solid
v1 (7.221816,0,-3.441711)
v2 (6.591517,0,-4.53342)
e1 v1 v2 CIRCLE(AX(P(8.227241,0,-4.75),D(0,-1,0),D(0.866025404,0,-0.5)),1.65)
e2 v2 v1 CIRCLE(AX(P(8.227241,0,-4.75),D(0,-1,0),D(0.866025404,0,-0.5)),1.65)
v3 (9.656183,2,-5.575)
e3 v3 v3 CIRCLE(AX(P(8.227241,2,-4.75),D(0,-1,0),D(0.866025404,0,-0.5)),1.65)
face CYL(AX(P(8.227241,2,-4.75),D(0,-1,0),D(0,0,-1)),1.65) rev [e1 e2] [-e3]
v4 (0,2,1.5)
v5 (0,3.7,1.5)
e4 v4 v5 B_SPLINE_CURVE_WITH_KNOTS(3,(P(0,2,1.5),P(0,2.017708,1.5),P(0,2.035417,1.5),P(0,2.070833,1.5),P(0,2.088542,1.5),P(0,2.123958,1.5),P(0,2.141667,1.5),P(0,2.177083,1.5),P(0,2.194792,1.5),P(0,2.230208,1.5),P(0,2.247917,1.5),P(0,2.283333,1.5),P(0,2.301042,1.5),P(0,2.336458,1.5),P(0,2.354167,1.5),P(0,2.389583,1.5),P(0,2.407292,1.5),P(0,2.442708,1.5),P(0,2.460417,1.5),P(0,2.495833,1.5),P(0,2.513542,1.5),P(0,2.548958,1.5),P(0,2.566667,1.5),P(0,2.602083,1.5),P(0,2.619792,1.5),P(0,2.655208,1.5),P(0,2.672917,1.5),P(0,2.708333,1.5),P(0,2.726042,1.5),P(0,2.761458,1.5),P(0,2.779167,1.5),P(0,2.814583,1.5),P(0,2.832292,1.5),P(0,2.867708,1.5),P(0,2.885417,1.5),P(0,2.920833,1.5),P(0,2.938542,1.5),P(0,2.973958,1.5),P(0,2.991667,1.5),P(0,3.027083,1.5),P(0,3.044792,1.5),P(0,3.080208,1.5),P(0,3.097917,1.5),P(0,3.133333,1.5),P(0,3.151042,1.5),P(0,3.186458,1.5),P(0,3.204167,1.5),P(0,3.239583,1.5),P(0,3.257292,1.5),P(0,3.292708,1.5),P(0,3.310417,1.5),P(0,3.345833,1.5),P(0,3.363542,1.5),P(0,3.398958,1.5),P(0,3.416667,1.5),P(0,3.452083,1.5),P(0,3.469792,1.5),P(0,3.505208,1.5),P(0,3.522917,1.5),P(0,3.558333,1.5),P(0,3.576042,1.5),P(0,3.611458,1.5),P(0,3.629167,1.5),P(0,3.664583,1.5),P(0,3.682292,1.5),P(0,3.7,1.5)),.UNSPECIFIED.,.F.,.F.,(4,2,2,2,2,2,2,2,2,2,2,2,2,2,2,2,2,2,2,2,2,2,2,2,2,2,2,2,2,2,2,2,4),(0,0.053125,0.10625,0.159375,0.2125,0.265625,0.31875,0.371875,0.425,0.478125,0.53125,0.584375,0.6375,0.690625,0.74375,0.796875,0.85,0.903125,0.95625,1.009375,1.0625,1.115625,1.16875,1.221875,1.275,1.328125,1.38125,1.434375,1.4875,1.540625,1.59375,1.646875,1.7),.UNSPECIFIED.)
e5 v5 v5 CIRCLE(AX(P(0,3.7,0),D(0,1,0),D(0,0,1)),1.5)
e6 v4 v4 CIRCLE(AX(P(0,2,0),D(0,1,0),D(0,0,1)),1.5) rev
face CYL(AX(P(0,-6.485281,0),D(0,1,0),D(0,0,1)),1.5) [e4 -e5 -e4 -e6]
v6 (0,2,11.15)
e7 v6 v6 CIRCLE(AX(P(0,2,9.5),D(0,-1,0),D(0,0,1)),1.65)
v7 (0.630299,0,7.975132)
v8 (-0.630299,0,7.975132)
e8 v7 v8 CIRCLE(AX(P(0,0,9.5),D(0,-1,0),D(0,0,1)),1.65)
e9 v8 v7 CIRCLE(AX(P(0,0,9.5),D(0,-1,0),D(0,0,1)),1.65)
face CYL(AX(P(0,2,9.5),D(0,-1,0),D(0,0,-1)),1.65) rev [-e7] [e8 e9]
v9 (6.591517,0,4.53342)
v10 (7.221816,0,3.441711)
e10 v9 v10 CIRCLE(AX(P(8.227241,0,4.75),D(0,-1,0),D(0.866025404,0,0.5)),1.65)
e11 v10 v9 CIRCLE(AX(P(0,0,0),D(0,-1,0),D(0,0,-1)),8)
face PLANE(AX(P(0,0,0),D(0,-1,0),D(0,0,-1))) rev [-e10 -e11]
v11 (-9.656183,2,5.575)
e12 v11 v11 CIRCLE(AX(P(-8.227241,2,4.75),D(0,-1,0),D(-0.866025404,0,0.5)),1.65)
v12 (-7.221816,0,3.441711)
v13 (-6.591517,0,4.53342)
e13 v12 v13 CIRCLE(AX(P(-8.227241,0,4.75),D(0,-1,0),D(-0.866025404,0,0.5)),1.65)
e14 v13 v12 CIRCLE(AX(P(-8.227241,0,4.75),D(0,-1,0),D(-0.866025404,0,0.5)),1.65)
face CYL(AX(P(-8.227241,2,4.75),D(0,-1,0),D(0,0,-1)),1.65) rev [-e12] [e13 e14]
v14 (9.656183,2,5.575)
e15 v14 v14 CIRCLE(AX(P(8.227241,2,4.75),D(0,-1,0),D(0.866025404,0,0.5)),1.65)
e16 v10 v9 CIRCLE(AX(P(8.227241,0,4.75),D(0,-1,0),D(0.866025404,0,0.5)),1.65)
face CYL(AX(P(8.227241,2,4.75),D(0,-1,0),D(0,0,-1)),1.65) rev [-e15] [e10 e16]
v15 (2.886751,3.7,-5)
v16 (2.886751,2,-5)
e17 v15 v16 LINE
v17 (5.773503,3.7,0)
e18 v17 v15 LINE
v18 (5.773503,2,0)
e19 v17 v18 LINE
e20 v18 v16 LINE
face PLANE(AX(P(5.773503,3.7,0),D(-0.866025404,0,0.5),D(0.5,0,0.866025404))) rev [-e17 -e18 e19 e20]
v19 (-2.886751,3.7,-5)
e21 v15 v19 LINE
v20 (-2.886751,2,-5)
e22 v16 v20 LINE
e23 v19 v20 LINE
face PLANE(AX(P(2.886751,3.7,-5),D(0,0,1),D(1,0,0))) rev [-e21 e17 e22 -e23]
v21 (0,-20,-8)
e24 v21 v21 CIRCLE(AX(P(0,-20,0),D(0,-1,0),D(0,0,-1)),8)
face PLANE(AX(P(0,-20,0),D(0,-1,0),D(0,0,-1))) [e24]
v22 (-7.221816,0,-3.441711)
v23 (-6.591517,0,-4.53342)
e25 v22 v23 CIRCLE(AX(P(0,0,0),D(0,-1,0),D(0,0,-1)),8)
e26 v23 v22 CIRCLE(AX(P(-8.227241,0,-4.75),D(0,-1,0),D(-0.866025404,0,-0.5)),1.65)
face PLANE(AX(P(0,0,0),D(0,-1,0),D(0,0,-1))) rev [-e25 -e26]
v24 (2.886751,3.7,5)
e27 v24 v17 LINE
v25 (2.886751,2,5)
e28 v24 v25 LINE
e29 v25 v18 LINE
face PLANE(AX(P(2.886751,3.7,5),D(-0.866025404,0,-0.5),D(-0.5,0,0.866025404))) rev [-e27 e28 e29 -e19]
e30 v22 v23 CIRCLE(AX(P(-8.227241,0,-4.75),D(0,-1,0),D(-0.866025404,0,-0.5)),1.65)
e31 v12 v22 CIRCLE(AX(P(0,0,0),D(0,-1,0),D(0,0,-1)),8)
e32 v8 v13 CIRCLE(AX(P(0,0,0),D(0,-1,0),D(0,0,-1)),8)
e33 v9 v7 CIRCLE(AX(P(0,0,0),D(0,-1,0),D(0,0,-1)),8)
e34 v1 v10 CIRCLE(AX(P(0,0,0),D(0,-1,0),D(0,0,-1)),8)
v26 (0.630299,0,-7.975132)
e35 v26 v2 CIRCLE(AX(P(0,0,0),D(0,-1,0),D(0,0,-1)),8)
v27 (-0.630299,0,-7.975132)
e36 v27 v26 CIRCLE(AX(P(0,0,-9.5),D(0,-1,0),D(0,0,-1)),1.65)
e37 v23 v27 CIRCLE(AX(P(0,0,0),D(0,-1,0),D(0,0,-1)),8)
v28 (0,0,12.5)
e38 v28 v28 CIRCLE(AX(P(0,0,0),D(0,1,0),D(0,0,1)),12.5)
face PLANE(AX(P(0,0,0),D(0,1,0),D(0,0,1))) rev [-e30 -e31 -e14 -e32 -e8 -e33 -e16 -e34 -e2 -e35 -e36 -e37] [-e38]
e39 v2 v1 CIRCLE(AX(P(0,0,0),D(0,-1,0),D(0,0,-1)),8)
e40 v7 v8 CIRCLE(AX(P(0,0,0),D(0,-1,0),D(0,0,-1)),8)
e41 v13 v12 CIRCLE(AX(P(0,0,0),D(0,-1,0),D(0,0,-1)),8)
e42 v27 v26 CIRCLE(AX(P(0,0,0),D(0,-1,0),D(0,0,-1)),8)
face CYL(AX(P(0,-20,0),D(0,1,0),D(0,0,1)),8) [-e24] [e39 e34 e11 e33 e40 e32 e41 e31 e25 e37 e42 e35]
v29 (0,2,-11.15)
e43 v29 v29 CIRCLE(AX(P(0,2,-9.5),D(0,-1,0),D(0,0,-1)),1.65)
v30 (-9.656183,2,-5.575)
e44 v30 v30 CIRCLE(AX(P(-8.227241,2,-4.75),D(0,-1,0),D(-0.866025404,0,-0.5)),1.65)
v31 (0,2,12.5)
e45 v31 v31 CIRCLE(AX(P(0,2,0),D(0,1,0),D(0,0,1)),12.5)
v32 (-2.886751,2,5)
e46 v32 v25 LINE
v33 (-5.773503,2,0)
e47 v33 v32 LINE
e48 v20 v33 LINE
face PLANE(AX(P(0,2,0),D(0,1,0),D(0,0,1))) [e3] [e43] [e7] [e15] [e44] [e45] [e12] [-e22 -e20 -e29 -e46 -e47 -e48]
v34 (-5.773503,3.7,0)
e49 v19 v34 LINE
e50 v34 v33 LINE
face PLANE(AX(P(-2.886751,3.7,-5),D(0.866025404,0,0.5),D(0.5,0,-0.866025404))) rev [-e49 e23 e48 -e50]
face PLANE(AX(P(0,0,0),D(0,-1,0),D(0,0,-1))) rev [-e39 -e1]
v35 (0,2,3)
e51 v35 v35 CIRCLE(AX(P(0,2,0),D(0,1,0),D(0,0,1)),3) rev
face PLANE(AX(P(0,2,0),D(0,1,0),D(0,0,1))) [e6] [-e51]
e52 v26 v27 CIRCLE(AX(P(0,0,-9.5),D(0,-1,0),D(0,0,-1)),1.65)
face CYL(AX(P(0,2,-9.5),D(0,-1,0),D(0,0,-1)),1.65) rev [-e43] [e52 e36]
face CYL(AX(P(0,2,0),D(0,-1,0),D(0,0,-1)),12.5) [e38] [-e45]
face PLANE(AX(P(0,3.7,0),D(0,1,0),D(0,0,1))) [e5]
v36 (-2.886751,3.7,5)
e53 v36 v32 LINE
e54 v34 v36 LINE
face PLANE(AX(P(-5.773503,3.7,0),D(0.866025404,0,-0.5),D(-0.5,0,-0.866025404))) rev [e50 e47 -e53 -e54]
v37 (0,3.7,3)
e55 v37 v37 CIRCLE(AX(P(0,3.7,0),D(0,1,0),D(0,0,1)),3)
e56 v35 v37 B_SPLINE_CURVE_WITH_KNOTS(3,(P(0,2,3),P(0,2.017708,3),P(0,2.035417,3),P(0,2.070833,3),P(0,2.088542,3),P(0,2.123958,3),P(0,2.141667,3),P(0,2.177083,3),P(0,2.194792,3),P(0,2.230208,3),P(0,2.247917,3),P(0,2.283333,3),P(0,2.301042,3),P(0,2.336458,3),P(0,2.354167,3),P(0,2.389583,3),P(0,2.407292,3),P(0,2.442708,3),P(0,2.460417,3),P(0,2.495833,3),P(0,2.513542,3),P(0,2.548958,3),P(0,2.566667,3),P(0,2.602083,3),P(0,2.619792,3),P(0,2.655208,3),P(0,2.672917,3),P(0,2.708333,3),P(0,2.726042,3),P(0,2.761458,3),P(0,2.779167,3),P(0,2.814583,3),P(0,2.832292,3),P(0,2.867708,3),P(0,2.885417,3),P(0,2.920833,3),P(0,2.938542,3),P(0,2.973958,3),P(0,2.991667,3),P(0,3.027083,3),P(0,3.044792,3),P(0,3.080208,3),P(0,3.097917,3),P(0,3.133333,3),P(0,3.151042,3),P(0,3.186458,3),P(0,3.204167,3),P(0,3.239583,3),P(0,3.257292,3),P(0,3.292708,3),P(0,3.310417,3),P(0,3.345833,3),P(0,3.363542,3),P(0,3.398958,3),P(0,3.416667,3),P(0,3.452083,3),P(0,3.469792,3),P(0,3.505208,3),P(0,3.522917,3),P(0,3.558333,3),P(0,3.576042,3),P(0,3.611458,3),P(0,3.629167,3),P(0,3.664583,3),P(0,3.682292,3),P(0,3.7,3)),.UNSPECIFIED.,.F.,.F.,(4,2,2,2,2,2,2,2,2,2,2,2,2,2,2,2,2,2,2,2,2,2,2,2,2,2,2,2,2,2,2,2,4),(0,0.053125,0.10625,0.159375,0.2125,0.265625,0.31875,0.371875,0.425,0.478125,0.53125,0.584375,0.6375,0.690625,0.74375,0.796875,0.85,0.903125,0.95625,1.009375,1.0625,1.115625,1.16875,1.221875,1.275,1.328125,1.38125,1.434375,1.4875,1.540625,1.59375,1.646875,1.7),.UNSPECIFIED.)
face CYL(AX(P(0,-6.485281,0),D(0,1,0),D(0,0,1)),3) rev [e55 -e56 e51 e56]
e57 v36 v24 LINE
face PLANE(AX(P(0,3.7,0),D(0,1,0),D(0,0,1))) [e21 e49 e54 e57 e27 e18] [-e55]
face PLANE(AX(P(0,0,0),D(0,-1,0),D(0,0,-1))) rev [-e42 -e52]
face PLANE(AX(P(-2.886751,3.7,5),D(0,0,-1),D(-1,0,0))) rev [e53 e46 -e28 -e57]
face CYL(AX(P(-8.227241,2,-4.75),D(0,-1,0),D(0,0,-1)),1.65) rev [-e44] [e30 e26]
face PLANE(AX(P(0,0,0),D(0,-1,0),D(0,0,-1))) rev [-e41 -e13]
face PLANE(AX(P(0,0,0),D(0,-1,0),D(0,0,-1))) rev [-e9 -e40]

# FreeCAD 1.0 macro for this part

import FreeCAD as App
import Part
import Sketcher

V = App.Vector
Q = App.Units.Quantity

doc = App.newDocument("Part")
params = doc.addObject("Spreadsheet::Sheet", "Params")
for row, (alias, value) in enumerate([
    ("sketch1_diameter", "25 mm"),
    ("pad1_length", "2 mm"),
    ("sketch2_diameter", "3.3 mm"),
    ("sketch3_diameter", "16 mm"),
    ("pad2_length", "20 mm"),
    ("pad3_length", "1.7 mm"),
    ("sketch5_diameter", "6 mm"),
    ("sketch5_diameter2", "3 mm"),
    ("pocket2_length", "1.7 mm"),
], start=1):
    params.set(f"A{row}", alias)
    params.set(f"B{row}", "=" + value)
    params.setAlias(f"B{row}", alias)

body = doc.addObject("PartDesign::Body", "Body")

sketch1 = body.newObject("Sketcher::SketchObject", "Sketch")
sketch1.AttachmentSupport = (doc.getObject("XZ_Plane"), [""])
sketch1.MapMode = "FlatFace"
sketch1.addGeometry(Part.Circle(V(0, 0, 0), V(0, 0, 1), 12.5), False)
sketch1.addConstraint([
    Sketcher.Constraint("Coincident", 0, 3, -1, 1),
    Sketcher.Constraint("Diameter", 0, Q("25 mm")),
])
sketch1.setExpression("Constraints[1]", "Params.sketch1_diameter")
pad1 = body.newObject("PartDesign::Pad", "Pad")
pad1.Profile = sketch1
pad1.setExpression("Length", "Params.pad1_length")
pad1.Reversed = True

sketch2 = body.newObject("Sketcher::SketchObject", "Sketch001")
sketch2.AttachmentSupport = (doc.getObject("XZ_Plane"), [""])
sketch2.MapMode = "FlatFace"
sketch2.addGeometry(Part.Circle(V(0, -9.5, 0), V(0, 0, 1), 1.65), False)
sketch2.addConstraint([
    Sketcher.Constraint("PointOnObject", 0, 3, -2),
    Sketcher.Constraint("Diameter", 0, Q("3.3 mm")),
    Sketcher.Constraint("DistanceY", 0, 3, -1, 1, Q("9.5 mm")),
])
sketch2.setExpression("Constraints[1]", "Params.sketch2_diameter")
pocket1 = body.newObject("PartDesign::Pocket", "Pocket")
pocket1.Profile = sketch2
pocket1.Type = "ThroughAll"
doc.recompute()

polarpattern = body.newObject("PartDesign::PolarPattern", "PolarPattern")
polarpattern.Originals = [pocket1]
polarpattern.Axis = (doc.getObject("Y_Axis"), [""])
polarpattern.Angle = 360
polarpattern.Occurrences = 6
body.Tip = polarpattern

sketch3 = body.newObject("Sketcher::SketchObject", "Sketch002")
sketch3.AttachmentSupport = (doc.getObject("XZ_Plane"), [""])
sketch3.MapMode = "FlatFace"
sketch3.addGeometry(Part.Circle(V(0, 0, 0), V(0, 0, 1), 8), False)
sketch3.addConstraint([
    Sketcher.Constraint("Coincident", 0, 3, -1, 1),
    Sketcher.Constraint("Diameter", 0, Q("16 mm")),
])
sketch3.setExpression("Constraints[1]", "Params.sketch3_diameter")
pad2 = body.newObject("PartDesign::Pad", "Pad001")
pad2.Profile = sketch3
pad2.setExpression("Length", "Params.pad2_length")

sketch4 = body.newObject("Sketcher::SketchObject", "Sketch003")
sketch4.AttachmentSupport = (doc.getObject("XZ_Plane"), [""])
sketch4.MapMode = "FlatFace"
sketch4.AttachmentOffset = App.Placement(V(0, 0, -2), App.Rotation())
sketch4.addGeometry([
    Part.LineSegment(V(-5.773503, 0, 0), V(-2.886751, 5, 0)),
    Part.LineSegment(V(-2.886751, 5, 0), V(2.886751, 5, 0)),
    Part.LineSegment(V(2.886751, 5, 0), V(5.773503, 0, 0)),
    Part.LineSegment(V(5.773503, 0, 0), V(2.886751, -5, 0)),
    Part.LineSegment(V(2.886751, -5, 0), V(-2.886751, -5, 0)),
    Part.LineSegment(V(-2.886751, -5, 0), V(-5.773503, 0, 0)),
], False)
sketch4.addConstraint([
    Sketcher.Constraint("Coincident", 0, 2, 1, 1),
    Sketcher.Constraint("Coincident", 1, 2, 2, 1),
    Sketcher.Constraint("Coincident", 2, 2, 3, 1),
    Sketcher.Constraint("Coincident", 3, 2, 4, 1),
    Sketcher.Constraint("Coincident", 4, 2, 5, 1),
    Sketcher.Constraint("Coincident", 5, 2, 0, 1),
    Sketcher.Constraint("Horizontal", 1),
    Sketcher.Constraint("Horizontal", 4),
    Sketcher.Constraint("Symmetric", 0, 2, 3, 2, -1, 1),
    Sketcher.Constraint("Symmetric", 2, 2, 5, 2, -1, 1),
    Sketcher.Constraint("PointOnObject", 2, 2, -1),
    Sketcher.Constraint("Parallel", 2, 5),
    Sketcher.Constraint("Vertical", 1, 2, 3, 2),
    Sketcher.Constraint("Angle", 0, Q("60 deg")),
    Sketcher.Constraint("DistanceY", -1, 1, 0, 2, Q("5 mm")),
    Sketcher.Constraint("DistanceX", 1, 1, 1, 2, Q("5.773503 mm")),
])
pad3 = body.newObject("PartDesign::Pad", "Pad002")
pad3.Profile = sketch4
pad3.setExpression("Length", "Params.pad3_length")
pad3.Reversed = True

sketch5 = body.newObject("Sketcher::SketchObject", "Sketch004")
sketch5.AttachmentSupport = (doc.getObject("XZ_Plane"), [""])
sketch5.MapMode = "FlatFace"
sketch5.AttachmentOffset = App.Placement(V(0, 0, -3.7), App.Rotation())
sketch5.addGeometry([
    Part.Circle(V(0, 0, 0), V(0, 0, 1), 3),
    Part.Circle(V(0, 0, 0), V(0, 0, 1), 1.5),
], False)
sketch5.addConstraint([
    Sketcher.Constraint("Coincident", 0, 3, -1, 1),
    Sketcher.Constraint("Coincident", 1, 3, -1, 1),
    Sketcher.Constraint("Diameter", 0, Q("6 mm")),
    Sketcher.Constraint("Diameter", 1, Q("3 mm")),
])
sketch5.setExpression("Constraints[2]", "Params.sketch5_diameter")
sketch5.setExpression("Constraints[3]", "Params.sketch5_diameter2")
pocket2 = body.newObject("PartDesign::Pocket", "Pocket001")
pocket2.Profile = sketch5
pocket2.setExpression("Length", "Params.pocket2_length")
pocket2.Reversed = True

doc.recompute()
